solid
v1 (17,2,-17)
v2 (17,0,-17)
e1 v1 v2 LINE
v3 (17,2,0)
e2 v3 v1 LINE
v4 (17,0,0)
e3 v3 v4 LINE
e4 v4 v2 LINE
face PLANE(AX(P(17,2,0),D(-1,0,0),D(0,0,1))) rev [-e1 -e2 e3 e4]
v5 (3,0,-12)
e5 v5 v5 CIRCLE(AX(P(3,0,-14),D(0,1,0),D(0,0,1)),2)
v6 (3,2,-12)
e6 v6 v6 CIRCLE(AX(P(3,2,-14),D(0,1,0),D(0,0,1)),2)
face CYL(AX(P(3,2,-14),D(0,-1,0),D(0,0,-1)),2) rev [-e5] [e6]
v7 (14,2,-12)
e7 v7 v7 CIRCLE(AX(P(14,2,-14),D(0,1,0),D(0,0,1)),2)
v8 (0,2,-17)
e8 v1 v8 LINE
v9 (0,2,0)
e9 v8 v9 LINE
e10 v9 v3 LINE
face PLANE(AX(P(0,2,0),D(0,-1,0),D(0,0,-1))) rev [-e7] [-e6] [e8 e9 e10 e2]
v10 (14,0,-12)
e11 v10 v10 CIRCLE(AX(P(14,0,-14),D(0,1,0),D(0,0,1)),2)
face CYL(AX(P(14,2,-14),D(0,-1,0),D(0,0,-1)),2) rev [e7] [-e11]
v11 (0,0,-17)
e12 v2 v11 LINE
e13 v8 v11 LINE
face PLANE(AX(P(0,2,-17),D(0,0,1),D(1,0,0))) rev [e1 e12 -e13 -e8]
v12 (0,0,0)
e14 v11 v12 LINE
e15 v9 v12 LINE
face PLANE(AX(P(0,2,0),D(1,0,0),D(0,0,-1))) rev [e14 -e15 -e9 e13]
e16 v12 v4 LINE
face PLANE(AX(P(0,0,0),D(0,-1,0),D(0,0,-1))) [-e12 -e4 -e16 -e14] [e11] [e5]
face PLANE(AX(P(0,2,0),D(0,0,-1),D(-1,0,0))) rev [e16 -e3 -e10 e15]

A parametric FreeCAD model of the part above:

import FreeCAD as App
import Part
import Sketcher

V = App.Vector

doc = App.newDocument("Part")
body = doc.addObject("PartDesign::Body", "Body")

sketch1 = body.newObject("Sketcher::SketchObject", "Sketch")
sketch1.AttachmentSupport = (doc.getObject("XZ_Plane"), [""])
sketch1.MapMode = "FlatFace"
sketch1.addGeometry(Part.LineSegment(V(0, -17, 0), V(0, 0, 0)), False)
sketch1.addGeometry(Part.LineSegment(V(0, 0, 0), V(17, 0, 0)), False)
sketch1.addGeometry(Part.LineSegment(V(17, 0, 0), V(17, -17, 0)), False)
sketch1.addGeometry(Part.LineSegment(V(17, -17, 0), V(0, -17, 0)), False)
sketch1.addGeometry(Part.Circle(V(3, -14, 0), V(0, 0, 1), 2), False)
sketch1.addGeometry(Part.Circle(V(14, -14, 0), V(0, 0, 1), 2), False)
sketch1.addConstraint(Sketcher.Constraint("Coincident", 0, 2, 1, 1))
sketch1.addConstraint(Sketcher.Constraint("Coincident", 1, 2, 2, 1))
sketch1.addConstraint(Sketcher.Constraint("Coincident", 2, 2, 3, 1))
sketch1.addConstraint(Sketcher.Constraint("Coincident", 3, 2, 0, 1))
sketch1.addConstraint(Sketcher.Constraint("Vertical", 0))
sketch1.addConstraint(Sketcher.Constraint("Horizontal", 1))
sketch1.addConstraint(Sketcher.Constraint("Vertical", 2))
sketch1.addConstraint(Sketcher.Constraint("Horizontal", 3))
sketch1.addConstraint(Sketcher.Constraint("Coincident", 0, 2, -1, 1))
sketch1.addConstraint(Sketcher.Constraint("Equal", 4, 5))
sketch1.addConstraint(Sketcher.Constraint("Horizontal", 4, 3, 5, 3))
sketch1.addConstraint(Sketcher.Constraint("Equal", 3, 0))
sketch1.addConstraint(Sketcher.Constraint("Diameter", 4, 4.0))
sketch1.addConstraint(Sketcher.Constraint("DistanceX", 1, 1, 1, 2, 17.0))
sketch1.addConstraint(Sketcher.Constraint("DistanceX", -1, 1, 4, 3, 3.0))
sketch1.addConstraint(Sketcher.Constraint("DistanceY", 4, 3, -1, 1, 14.0))
sketch1.addConstraint(Sketcher.Constraint("DistanceX", -1, 1, 5, 3, 14.0))
pad1 = body.newObject("PartDesign::Pad", "Pad")
pad1.Profile = sketch1
pad1.Length = 2
pad1.Reversed = True

doc.recompute()
